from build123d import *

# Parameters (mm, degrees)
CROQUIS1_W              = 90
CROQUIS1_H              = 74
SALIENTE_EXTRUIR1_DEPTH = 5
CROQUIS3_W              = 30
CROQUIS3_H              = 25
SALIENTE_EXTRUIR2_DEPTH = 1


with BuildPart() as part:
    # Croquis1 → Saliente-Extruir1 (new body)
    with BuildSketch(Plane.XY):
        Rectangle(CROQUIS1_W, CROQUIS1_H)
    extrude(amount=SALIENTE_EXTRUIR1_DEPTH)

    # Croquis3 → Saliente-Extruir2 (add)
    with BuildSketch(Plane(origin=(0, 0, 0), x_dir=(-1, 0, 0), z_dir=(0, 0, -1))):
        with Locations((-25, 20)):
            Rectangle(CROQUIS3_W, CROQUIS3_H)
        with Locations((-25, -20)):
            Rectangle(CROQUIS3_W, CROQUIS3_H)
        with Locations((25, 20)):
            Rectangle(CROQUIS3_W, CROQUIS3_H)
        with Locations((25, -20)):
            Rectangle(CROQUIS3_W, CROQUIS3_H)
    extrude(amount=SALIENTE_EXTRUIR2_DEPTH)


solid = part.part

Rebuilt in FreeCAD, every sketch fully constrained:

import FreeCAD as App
import Part
import Sketcher
from FreeCAD import Vector


def add_polygon(sketch, points):
    """Adds a closed chain of lines whose ends are joined by coincident constraints."""
    first, n = sketch.GeometryCount, len(points)
    for a, b in zip(points, points[1:] + points[:1]):
        sketch.addGeometry(Part.LineSegment(App.Vector(*a, 0), App.Vector(*b, 0)), False)
    for i in range(n):
        sketch.addConstraint(Sketcher.Constraint("Coincident", first + i, 2, first + (i + 1) % n, 1))

doc = App.newDocument("Part")
params = doc.addObject("Spreadsheet::Sheet", "Params")
for row, (alias, value) in enumerate([
    ("sketch1_width", "90 mm"),
    ("sketch1_height", "74 mm"),
    ("pad1_length", "5 mm"),
    ("sketch2_width", "30 mm"),
    ("sketch2_height", "25 mm"),
    ("pad2_length", "1 mm"),
], start=1):
    params.set(f"A{row}", alias)
    params.set(f"B{row}", "=" + value)
    params.setAlias(f"B{row}", alias)

body = doc.addObject("PartDesign::Body", "Body")

sketch1 = body.newObject("Sketcher::SketchObject", "Sketch")
sketch1.AttachmentSupport = (doc.getObject("XY_Plane"), [""])
sketch1.MapMode = "FlatFace"
add_polygon(sketch1, [(-45, 37), (-45, -37), (45, -37), (45, 37)])
sketch1.addConstraint(Sketcher.Constraint("Vertical", 0))
sketch1.addConstraint(Sketcher.Constraint("Horizontal", 1))
sketch1.addConstraint(Sketcher.Constraint("Vertical", 2))
sketch1.addConstraint(Sketcher.Constraint("Horizontal", 3))
sketch1.addConstraint(Sketcher.Constraint("Symmetric", 0, 2, 2, 2, -1, 1))
sketch1.addConstraint(Sketcher.Constraint("DistanceX", 1, 1, 1, 2, 90.0))
sketch1.addConstraint(Sketcher.Constraint("DistanceY", 0, 2, 0, 1, 74.0))
sketch1.setExpression("Constraints[9]", "Params.sketch1_width")
sketch1.setExpression("Constraints[10]", "Params.sketch1_height")
pad1 = body.newObject("PartDesign::Pad", "Pad")
pad1.Profile = sketch1
pad1.setExpression("Length", "Params.pad1_length")

sketch2 = body.newObject("Sketcher::SketchObject", "Sketch001")
sketch2.AttachmentSupport = (doc.getObject("XY_Plane"), [""])
sketch2.MapMode = "FlatFace"
add_polygon(sketch2, [(40, 32), (40, 8), (10, 8), (10, 32)])
add_polygon(sketch2, [(40, -8), (40, -32), (10, -32), (10, -8)])
add_polygon(sketch2, [(-10, 32), (-10, 8), (-40, 8), (-40, 32)])
add_polygon(sketch2, [(-10, -8), (-10, -32), (-40, -32), (-40, -8)])
sketch2.addConstraint(Sketcher.Constraint("Vertical", 0))
sketch2.addConstraint(Sketcher.Constraint("Horizontal", 1))
sketch2.addConstraint(Sketcher.Constraint("Vertical", 2))
sketch2.addConstraint(Sketcher.Constraint("Horizontal", 3))
sketch2.addConstraint(Sketcher.Constraint("Vertical", 4))
sketch2.addConstraint(Sketcher.Constraint("Horizontal", 5))
sketch2.addConstraint(Sketcher.Constraint("Vertical", 6))
sketch2.addConstraint(Sketcher.Constraint("Horizontal", 7))
sketch2.addConstraint(Sketcher.Constraint("Vertical", 8))
sketch2.addConstraint(Sketcher.Constraint("Horizontal", 9))
sketch2.addConstraint(Sketcher.Constraint("Vertical", 10))
sketch2.addConstraint(Sketcher.Constraint("Horizontal", 11))
sketch2.addConstraint(Sketcher.Constraint("Vertical", 12))
sketch2.addConstraint(Sketcher.Constraint("Horizontal", 13))
sketch2.addConstraint(Sketcher.Constraint("Vertical", 14))
sketch2.addConstraint(Sketcher.Constraint("Horizontal", 15))
sketch2.addConstraint(Sketcher.Constraint("Symmetric", 6, 2, 8, 2, -1, 1))
sketch2.addConstraint(Sketcher.Constraint("Symmetric", 4, 2, 10, 2, -1, 1))
sketch2.addConstraint(Sketcher.Constraint("Symmetric", 2, 2, 12, 2, -1, 1))
sketch2.addConstraint(Sketcher.Constraint("Symmetric", 0, 2, 14, 2, -1, 1))
sketch2.addConstraint(Sketcher.Constraint("Symmetric", 1, 2, 8, 2, -2))
sketch2.addConstraint(Sketcher.Constraint("Symmetric", 3, 2, 10, 2, -2))
sketch2.addConstraint(Sketcher.Constraint("DistanceX", 1, 2, 1, 1, 30.0))
sketch2.addConstraint(Sketcher.Constraint("DistanceY", 0, 2, 0, 1, 25.0))
sketch2.addConstraint(Sketcher.Constraint("DistanceX", -1, 1, 0, 2, 40.0))
sketch2.addConstraint(Sketcher.Constraint("DistanceY", 4, 2, 0, 2, 40.0))
sketch2.setExpression("Constraints[38]", "Params.sketch2_width")
sketch2.setExpression("Constraints[39]", "Params.sketch2_height")
pad2 = body.newObject("PartDesign::Pad", "Pad001")
pad2.Profile = sketch2
pad2.setExpression("Length", "Params.pad2_length")
pad2.Reversed = True

doc.recompute()
